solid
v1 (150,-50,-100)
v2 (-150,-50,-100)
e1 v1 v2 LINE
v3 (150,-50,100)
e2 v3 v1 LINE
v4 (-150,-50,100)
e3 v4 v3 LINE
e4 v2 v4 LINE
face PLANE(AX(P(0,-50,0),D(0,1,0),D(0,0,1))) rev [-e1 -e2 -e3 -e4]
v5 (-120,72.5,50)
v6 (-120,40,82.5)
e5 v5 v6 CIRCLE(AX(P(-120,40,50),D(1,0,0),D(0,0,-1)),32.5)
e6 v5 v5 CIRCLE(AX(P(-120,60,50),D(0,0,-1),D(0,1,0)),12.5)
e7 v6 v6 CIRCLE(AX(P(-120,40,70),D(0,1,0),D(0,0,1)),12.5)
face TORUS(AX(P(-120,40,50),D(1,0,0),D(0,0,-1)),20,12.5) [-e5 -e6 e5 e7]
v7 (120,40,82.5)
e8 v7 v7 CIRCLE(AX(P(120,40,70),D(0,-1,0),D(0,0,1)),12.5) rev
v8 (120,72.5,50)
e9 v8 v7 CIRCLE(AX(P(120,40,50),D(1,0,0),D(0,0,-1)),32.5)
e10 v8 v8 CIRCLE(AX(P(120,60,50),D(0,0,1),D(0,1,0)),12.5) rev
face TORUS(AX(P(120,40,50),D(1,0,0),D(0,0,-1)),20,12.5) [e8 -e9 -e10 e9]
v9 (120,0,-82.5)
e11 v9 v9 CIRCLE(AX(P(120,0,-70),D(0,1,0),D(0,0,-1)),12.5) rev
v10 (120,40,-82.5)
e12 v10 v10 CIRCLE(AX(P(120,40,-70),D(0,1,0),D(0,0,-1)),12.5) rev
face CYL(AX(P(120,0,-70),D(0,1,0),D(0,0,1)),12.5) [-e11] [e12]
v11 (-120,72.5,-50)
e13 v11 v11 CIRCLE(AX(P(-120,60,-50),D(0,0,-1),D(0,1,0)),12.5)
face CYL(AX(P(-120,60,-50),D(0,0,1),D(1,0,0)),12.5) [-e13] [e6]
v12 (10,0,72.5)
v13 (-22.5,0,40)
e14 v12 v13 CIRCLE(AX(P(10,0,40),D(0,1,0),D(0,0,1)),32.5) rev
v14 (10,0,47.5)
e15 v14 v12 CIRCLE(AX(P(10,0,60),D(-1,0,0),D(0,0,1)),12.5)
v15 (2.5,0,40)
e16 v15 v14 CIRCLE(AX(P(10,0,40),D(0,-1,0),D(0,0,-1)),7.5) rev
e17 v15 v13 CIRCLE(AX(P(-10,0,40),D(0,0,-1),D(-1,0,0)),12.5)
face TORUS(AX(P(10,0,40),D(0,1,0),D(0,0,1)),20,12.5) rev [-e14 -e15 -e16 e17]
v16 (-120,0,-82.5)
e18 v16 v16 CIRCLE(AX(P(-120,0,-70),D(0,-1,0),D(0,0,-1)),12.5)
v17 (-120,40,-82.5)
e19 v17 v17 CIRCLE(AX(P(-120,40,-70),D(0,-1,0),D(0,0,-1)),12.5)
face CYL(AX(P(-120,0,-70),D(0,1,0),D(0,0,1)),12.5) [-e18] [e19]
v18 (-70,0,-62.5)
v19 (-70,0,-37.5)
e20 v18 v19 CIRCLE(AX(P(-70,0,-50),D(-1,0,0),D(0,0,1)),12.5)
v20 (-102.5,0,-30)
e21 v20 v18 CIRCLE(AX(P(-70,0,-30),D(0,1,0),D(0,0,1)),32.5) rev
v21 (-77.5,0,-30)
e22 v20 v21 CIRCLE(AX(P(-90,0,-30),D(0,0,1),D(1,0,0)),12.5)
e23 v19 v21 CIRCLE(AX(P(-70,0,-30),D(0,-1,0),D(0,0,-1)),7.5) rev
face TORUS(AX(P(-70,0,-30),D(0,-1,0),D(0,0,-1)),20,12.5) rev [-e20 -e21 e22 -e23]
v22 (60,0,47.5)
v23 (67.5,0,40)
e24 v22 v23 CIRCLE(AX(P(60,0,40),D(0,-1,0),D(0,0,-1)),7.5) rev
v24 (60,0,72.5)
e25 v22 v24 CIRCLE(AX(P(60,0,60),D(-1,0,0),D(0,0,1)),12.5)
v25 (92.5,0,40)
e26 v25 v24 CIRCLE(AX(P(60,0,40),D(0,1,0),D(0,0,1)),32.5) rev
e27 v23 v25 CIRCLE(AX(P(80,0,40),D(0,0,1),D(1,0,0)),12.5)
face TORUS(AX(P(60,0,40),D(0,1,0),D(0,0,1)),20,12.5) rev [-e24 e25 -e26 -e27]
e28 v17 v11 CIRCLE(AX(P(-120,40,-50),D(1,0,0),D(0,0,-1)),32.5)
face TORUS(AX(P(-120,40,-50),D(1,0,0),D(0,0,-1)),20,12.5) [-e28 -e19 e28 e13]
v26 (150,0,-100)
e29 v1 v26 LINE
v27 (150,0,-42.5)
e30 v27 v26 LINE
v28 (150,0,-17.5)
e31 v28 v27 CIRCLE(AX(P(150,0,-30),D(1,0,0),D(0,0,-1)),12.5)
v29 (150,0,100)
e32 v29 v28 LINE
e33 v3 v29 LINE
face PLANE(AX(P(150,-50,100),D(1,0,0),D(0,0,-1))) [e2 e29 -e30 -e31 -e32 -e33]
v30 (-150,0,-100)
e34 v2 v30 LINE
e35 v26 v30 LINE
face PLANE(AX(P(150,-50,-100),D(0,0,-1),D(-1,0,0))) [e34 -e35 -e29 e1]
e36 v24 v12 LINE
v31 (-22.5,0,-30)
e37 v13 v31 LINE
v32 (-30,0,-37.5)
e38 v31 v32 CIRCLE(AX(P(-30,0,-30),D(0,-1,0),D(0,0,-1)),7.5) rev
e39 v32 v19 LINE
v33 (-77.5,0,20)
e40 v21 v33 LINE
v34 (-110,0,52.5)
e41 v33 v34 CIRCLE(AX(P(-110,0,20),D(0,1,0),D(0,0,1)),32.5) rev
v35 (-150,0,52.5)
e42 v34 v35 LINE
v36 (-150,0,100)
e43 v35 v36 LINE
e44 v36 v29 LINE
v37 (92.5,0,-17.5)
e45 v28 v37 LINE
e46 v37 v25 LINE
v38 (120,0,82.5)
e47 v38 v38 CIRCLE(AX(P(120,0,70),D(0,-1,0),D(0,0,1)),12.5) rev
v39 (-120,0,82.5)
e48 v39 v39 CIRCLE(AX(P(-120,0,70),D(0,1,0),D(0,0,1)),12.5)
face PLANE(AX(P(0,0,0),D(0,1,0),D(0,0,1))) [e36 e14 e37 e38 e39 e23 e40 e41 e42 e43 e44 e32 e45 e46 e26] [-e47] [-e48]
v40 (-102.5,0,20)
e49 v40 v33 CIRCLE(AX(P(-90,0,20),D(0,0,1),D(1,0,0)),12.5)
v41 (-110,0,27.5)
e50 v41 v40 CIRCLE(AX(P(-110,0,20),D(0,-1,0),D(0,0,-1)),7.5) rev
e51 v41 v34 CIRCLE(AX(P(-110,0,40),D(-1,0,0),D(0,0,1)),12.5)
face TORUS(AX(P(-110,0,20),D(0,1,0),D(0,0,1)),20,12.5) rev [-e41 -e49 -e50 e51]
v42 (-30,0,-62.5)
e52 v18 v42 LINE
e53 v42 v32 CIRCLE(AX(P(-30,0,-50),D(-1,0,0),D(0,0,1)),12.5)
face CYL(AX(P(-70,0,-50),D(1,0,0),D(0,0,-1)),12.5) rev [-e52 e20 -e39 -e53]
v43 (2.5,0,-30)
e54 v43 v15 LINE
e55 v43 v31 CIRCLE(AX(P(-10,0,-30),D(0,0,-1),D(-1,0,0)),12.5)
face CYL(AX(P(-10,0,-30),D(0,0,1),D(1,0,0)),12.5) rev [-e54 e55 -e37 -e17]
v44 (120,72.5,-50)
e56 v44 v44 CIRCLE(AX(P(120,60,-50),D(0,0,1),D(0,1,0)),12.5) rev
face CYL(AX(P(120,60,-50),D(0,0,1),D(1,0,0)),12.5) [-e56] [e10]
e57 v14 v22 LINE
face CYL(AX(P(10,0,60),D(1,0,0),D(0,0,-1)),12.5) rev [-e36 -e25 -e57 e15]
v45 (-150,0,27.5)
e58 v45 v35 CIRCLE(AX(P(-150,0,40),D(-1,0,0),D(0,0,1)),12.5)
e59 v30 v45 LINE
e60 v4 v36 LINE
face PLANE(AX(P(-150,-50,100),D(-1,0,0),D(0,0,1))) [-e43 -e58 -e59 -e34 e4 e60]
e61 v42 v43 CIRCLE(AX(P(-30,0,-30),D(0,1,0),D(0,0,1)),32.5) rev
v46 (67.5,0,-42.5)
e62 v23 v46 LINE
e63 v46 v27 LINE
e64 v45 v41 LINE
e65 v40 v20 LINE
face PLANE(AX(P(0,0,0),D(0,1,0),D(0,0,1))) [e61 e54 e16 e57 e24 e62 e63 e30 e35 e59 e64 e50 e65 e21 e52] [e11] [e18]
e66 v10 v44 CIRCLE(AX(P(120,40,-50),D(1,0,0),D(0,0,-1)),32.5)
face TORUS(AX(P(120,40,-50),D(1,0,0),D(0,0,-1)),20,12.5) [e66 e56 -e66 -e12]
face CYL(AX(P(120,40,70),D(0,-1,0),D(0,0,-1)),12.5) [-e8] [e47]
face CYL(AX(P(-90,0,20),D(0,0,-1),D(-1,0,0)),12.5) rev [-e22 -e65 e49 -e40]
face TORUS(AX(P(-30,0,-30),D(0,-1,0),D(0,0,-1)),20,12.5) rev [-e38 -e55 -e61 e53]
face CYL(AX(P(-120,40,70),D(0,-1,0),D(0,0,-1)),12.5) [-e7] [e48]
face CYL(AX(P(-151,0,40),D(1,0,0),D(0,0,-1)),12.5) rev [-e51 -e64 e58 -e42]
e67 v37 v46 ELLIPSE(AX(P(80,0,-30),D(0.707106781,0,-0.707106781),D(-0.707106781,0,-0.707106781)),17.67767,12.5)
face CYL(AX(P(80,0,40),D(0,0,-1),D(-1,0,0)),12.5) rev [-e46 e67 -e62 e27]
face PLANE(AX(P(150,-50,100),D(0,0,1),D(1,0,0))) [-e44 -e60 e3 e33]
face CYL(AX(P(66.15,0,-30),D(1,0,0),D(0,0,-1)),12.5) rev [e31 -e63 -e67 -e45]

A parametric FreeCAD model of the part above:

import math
import FreeCAD as App
import Part
import Sketcher
from FreeCAD import Vector
Q = App.Units.Quantity

doc = App.newDocument("Part")
body = doc.addObject("PartDesign::Body", "Body")

# Sketch on XZ plane
sketch1 = body.newObject("Sketcher::SketchObject", "Sketch")
sketch1.AttachmentSupport = (doc.getObject("XZ_Plane"), [""])
sketch1.MapMode = "FlatFace"
sketch1.addGeometry([
    Part.LineSegment(Vector(-150, -100, 0), Vector(-150, 100, 0)),
    Part.LineSegment(Vector(-150, 100, 0), Vector(150, 100, 0)),
    Part.LineSegment(Vector(150, 100, 0), Vector(150, -100, 0)),
    Part.LineSegment(Vector(150, -100, 0), Vector(-150, -100, 0)),
], False)
sketch1.addConstraint([
    Sketcher.Constraint("Coincident", 0, 2, 1, 1),
    Sketcher.Constraint("Coincident", 1, 2, 2, 1),
    Sketcher.Constraint("Coincident", 2, 2, 3, 1),
    Sketcher.Constraint("Coincident", 3, 2, 0, 1),
    Sketcher.Constraint("Vertical", 0),
    Sketcher.Constraint("Horizontal", 1),
    Sketcher.Constraint("Vertical", 2),
    Sketcher.Constraint("Horizontal", 3),
    Sketcher.Constraint("Symmetric", 0, 2, 2, 2, -1, 1),
    Sketcher.Constraint("DistanceX", 1, 1, 1, 2, Q("300 mm")),
    Sketcher.Constraint("DistanceY", 0, 1, 0, 2, Q("200 mm")),
])
pad1 = body.newObject("PartDesign::Pad", "Pad")
pad1.Profile = sketch1
pad1.Length = 50

# Sketch on YZ plane
sketch2 = body.newObject("Sketcher::SketchObject", "Sketch001")
sketch2.AttachmentSupport = (doc.getObject("YZ_Plane"), [""])
sketch2.MapMode = "FlatFace"
sketch2.AttachmentOffset = App.Placement(Vector(0, 0, -150), App.Rotation())
sketch2.addGeometry(Part.Circle(Vector(0, 40, 0), Vector(0, 0, 1), 12), False)
sketch2.addConstraint([
    Sketcher.Constraint("PointOnObject", 0, 3, -2),
    Sketcher.Constraint("Diameter", 0, Q("25 mm")),
    Sketcher.Constraint("DistanceY", -1, 1, 0, 3, Q("40 mm")),
])

# Sketch on XZ plane
sketch3 = body.newObject("Sketcher::SketchObject", "Sketch002")
sketch3.AttachmentSupport = (doc.getObject("XZ_Plane"), [""])
sketch3.MapMode = "FlatFace"
sketch3.addGeometry([
    Part.LineSegment(Vector(-150, 40, 0), Vector(-110, 40, 0)),  # 0
    Part.ArcOfCircle(Part.Circle(Vector(-110, 20, 0), Vector(0, 0, 1), 20), math.radians(0), math.radians(90)),  # 1
    Part.LineSegment(Vector(-90, 20, 0), Vector(-90, -30, 0)),  # 2
    Part.ArcOfCircle(Part.Circle(Vector(-70, -30, 0), Vector(0, 0, 1), 20), math.radians(180), math.radians(270)),  # 3
    Part.LineSegment(Vector(-70, -50, 0), Vector(-30, -50, 0)),  # 4
    Part.ArcOfCircle(Part.Circle(Vector(-30, -30, 0), Vector(0, 0, 1), 20), math.radians(-90), math.radians(0)),  # 5
    Part.LineSegment(Vector(-10, -30, 0), Vector(-10, 40, 0)),  # 6
    Part.ArcOfCircle(Part.Circle(Vector(10, 40, 0), Vector(0, 0, 1), 20), math.radians(90), math.radians(180)),  # 7
    Part.LineSegment(Vector(10, 60, 0), Vector(60, 60, 0)),  # 8
    Part.ArcOfCircle(Part.Circle(Vector(60, 40, 0), Vector(0, 0, 1), 20), math.radians(0), math.radians(90)),  # 9
    Part.LineSegment(Vector(80, 40, 0), Vector(80, -30, 0)),  # 10
    Part.LineSegment(Vector(80, -30, 0), Vector(150, -30, 0)),  # 11
], False)
sketch3.addConstraint([
    Sketcher.Constraint("Tangent", 0, 2, 1, 2),
    Sketcher.Constraint("Tangent", 1, 1, 2, 1),
    Sketcher.Constraint("Tangent", 2, 2, 3, 1),
    Sketcher.Constraint("Tangent", 3, 2, 4, 1),
    Sketcher.Constraint("Tangent", 4, 2, 5, 1),
    Sketcher.Constraint("Tangent", 5, 2, 6, 1),
    Sketcher.Constraint("Tangent", 6, 2, 7, 2),
    Sketcher.Constraint("Tangent", 7, 1, 8, 1),
    Sketcher.Constraint("Tangent", 8, 2, 9, 2),
    Sketcher.Constraint("Tangent", 9, 1, 10, 1),
    Sketcher.Constraint("Coincident", 10, 2, 11, 1),
    Sketcher.Constraint("Horizontal", 0),
    Sketcher.Constraint("Vertical", 2),
    Sketcher.Constraint("Horizontal", 4),
    Sketcher.Constraint("Vertical", 6),
    Sketcher.Constraint("Horizontal", 8),
    Sketcher.Constraint("Vertical", 10),
    Sketcher.Constraint("Horizontal", 11),
    Sketcher.Constraint("Equal", 1, 3),
    Sketcher.Constraint("Equal", 3, 5),
    Sketcher.Constraint("Equal", 5, 7),
    Sketcher.Constraint("Equal", 7, 9),
    Sketcher.Constraint("Horizontal", 9, 3, 0, 1),
    Sketcher.Constraint("Horizontal", 5, 2, 10, 2),
    Sketcher.Constraint("Equal", 0, 4),
    Sketcher.Constraint("Equal", 8, 2),
    Sketcher.Constraint("Equal", 11, 6),
    Sketcher.Constraint("Radius", 1, Q("20 mm")),
    Sketcher.Constraint("DistanceX", 0, 1, 0, 2, Q("40 mm")),
    Sketcher.Constraint("DistanceX", 8, 1, 8, 2, Q("50 mm")),
    Sketcher.Constraint("DistanceX", 1, 3, -1, 1, Q("110 mm")),
    Sketcher.Constraint("DistanceY", -1, 1, 1, 3, Q("20 mm")),
])
doc.recompute()

subtractivepipe = body.newObject("PartDesign::SubtractivePipe", "SubtractivePipe")
subtractivepipe.Profile = sketch2
subtractivepipe.Spine = (sketch3, ["Edge1", "Edge2", "Edge3", "Edge4", "Edge5", "Edge6", "Edge7", "Edge8", "Edge9", "Edge10", "Edge11", "Edge12"])
subtractivepipe.Transition = "Right corner"

# Sketch on XZ plane
sketch4 = body.newObject("Sketcher::SketchObject", "Sketch003")
sketch4.AttachmentSupport = (doc.getObject("XZ_Plane"), [""])
sketch4.MapMode = "FlatFace"
sketch4.addGeometry(Part.Circle(Vector(-120, -70, 0), Vector(0, 0, 1), 12), False)
sketch4.addConstraint([
    Sketcher.Constraint("Diameter", 0, Q("25 mm")),
    Sketcher.Constraint("DistanceX", 0, 3, -1, 1, Q("120 mm")),
    Sketcher.Constraint("DistanceY", 0, 3, -1, 1, Q("70 mm")),
])

# Sketch on YZ plane
sketch5 = body.newObject("Sketcher::SketchObject", "Sketch004")
sketch5.AttachmentSupport = (doc.getObject("YZ_Plane"), [""])
sketch5.MapMode = "FlatFace"
sketch5.AttachmentOffset = App.Placement(Vector(0, 0, -120), App.Rotation())
sketch5.addGeometry([
    Part.LineSegment(Vector(0, -70, 0), Vector(40, -70, 0)),  # 0
    Part.ArcOfCircle(Part.Circle(Vector(40, -50, 0), Vector(0, 0, 1), 20), math.radians(-90), math.radians(0)),  # 1
    Part.LineSegment(Vector(60, -50, 0), Vector(60, 50, 0)),  # 2
    Part.ArcOfCircle(Part.Circle(Vector(40, 50, 0), Vector(0, 0, 1), 20), math.radians(0), math.radians(90)),  # 3
    Part.LineSegment(Vector(40, 70, 0), Vector(0, 70, 0)),  # 4
], False)
sketch5.addConstraint([
    Sketcher.Constraint("Tangent", 0, 2, 1, 1),
    Sketcher.Constraint("Tangent", 1, 2, 2, 1),
    Sketcher.Constraint("Tangent", 2, 2, 3, 1),
    Sketcher.Constraint("Tangent", 3, 2, 4, 1),
    Sketcher.Constraint("Horizontal", 0),
    Sketcher.Constraint("Vertical", 2),
    Sketcher.Constraint("Horizontal", 4),
    Sketcher.Constraint("Equal", 1, 3),
    Sketcher.Constraint("Symmetric", 0, 1, 4, 2, -1, 1),
    Sketcher.Constraint("PointOnObject", 0, 1, -2),
    Sketcher.Constraint("Radius", 1, Q("20 mm")),
    Sketcher.Constraint("DistanceX", 0, 1, 0, 2, Q("40 mm")),
    Sketcher.Constraint("DistanceY", 2, 1, 2, 2, Q("100 mm")),
])
doc.recompute()

additivepipe = body.newObject("PartDesign::AdditivePipe", "AdditivePipe")
additivepipe.Profile = sketch4
additivepipe.Spine = (sketch5, ["Edge1", "Edge2", "Edge3", "Edge4", "Edge5"])
doc.recompute()

mirrored = body.newObject("PartDesign::Mirrored", "Mirrored")
mirrored.Originals = [additivepipe]
mirrored.MirrorPlane = (doc.getObject("YZ_Plane"), [""])
body.Tip = mirrored

doc.recompute()
